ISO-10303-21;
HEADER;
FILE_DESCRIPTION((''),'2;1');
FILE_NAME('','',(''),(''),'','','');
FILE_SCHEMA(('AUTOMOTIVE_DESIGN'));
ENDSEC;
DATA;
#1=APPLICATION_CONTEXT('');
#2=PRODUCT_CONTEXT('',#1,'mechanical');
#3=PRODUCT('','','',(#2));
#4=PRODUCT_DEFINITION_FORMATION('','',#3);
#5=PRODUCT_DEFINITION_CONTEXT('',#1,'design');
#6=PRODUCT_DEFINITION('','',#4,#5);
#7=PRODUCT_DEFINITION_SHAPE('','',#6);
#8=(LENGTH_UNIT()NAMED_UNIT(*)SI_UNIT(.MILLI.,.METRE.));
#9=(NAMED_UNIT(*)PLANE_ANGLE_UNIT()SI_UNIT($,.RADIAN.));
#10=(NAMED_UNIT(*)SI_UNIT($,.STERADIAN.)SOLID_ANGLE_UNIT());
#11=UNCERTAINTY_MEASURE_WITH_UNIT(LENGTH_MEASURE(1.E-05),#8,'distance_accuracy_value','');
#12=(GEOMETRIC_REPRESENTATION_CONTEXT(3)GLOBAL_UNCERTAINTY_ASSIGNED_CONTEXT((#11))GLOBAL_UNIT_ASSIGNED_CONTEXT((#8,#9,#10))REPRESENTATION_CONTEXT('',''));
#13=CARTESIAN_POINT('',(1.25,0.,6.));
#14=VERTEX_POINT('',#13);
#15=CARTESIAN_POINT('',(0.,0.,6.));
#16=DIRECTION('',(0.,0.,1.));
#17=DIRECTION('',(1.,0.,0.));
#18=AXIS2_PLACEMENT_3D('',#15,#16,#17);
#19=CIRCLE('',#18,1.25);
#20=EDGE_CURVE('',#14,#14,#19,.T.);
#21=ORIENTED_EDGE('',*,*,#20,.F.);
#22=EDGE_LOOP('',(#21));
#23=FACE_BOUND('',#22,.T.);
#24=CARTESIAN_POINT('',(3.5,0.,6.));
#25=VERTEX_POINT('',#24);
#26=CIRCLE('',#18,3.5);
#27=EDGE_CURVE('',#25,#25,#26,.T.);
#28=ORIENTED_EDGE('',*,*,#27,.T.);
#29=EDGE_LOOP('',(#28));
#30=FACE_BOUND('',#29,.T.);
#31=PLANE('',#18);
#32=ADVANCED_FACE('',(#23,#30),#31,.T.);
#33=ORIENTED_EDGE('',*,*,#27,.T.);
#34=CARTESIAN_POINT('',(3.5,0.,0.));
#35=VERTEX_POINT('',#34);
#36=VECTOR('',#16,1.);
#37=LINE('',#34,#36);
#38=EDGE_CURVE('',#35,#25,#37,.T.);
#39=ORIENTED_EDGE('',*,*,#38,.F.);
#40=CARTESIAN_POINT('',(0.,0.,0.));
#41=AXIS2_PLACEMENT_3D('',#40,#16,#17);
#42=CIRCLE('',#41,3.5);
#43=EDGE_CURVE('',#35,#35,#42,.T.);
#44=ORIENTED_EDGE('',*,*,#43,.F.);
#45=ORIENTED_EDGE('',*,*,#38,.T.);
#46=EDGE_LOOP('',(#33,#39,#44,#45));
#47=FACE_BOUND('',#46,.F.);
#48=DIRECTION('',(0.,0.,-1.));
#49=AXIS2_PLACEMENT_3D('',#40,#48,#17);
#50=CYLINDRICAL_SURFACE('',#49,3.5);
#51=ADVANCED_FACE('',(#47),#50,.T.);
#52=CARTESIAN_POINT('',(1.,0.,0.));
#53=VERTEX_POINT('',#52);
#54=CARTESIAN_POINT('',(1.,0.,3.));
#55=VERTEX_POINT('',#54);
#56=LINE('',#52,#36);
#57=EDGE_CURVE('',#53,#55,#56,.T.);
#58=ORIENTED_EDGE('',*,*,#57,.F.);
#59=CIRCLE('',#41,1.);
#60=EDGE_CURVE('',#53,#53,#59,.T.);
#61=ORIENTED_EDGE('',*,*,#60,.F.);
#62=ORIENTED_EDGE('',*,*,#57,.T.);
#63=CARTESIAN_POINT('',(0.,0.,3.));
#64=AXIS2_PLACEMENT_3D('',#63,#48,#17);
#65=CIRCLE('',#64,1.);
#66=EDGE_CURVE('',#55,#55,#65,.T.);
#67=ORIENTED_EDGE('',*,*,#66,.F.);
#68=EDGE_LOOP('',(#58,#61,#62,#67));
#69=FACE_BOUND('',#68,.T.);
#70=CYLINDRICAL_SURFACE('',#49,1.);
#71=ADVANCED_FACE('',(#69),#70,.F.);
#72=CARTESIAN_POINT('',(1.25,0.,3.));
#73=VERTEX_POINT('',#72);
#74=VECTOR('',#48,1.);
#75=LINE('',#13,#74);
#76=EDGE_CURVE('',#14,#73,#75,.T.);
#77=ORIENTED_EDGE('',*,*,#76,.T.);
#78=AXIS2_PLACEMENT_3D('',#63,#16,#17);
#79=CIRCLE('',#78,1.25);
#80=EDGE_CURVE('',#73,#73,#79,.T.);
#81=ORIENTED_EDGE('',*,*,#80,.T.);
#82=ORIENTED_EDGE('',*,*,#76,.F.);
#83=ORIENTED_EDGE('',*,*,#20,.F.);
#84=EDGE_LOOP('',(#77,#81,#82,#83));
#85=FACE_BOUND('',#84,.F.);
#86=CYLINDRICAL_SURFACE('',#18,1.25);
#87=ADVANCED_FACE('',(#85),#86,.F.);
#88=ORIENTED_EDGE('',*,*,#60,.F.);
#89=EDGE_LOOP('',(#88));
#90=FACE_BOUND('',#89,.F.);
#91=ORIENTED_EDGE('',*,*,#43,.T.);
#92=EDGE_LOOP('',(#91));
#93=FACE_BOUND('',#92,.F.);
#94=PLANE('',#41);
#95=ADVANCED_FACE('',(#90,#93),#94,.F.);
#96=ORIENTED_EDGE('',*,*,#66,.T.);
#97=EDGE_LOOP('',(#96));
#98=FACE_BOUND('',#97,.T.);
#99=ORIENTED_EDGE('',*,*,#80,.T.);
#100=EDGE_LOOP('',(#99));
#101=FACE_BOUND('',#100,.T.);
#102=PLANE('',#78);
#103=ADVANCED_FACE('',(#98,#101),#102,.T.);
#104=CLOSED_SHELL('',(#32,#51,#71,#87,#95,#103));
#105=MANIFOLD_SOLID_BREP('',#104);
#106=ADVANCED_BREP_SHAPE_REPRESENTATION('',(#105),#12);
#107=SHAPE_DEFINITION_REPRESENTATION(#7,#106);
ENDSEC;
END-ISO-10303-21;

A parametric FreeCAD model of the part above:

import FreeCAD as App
import Part
import Sketcher
from FreeCAD import Vector

doc = App.newDocument("Part")
body = doc.addObject("PartDesign::Body", "Body")

# Sketch on XY plane
sketch1 = body.newObject("Sketcher::SketchObject", "Sketch")
sketch1.AttachmentSupport = (doc.getObject("XY_Plane"), [""])
sketch1.MapMode = "FlatFace"
sketch1.addGeometry([
    Part.Circle(Vector(0, 0, 0), Vector(0, 0, 1), 3.5),
    Part.Circle(Vector(0, 0, 0), Vector(0, 0, 1), 1),
], False)
sketch1.addConstraint([
    Sketcher.Constraint("Coincident", 0, 3, -1, 1),
    Sketcher.Constraint("Coincident", 1, 3, -1, 1),
    Sketcher.Constraint("Diameter", 0, 7.0),
    Sketcher.Constraint("Diameter", 1, 2.0),
])
pad1 = body.newObject("PartDesign::Pad", "Pad")
pad1.Profile = sketch1
pad1.Length = 6

# Sketch on XY plane
sketch2 = body.newObject("Sketcher::SketchObject", "Sketch001")
sketch2.AttachmentSupport = (doc.getObject("XY_Plane"), [""])
sketch2.MapMode = "FlatFace"
sketch2.AttachmentOffset = App.Placement(Vector(0, 0, 6), App.Rotation())
sketch2.addGeometry(Part.Circle(Vector(0, 0, 0), Vector(0, 0, 1), 1.2), False)
sketch2.addConstraint([
    Sketcher.Constraint("Coincident", 0, 3, -1, 1),
    Sketcher.Constraint("Diameter", 0, 2.5),
])
pocket1 = body.newObject("PartDesign::Pocket", "Pocket")
pocket1.Profile = sketch2
pocket1.Length = 3

doc.recompute()
